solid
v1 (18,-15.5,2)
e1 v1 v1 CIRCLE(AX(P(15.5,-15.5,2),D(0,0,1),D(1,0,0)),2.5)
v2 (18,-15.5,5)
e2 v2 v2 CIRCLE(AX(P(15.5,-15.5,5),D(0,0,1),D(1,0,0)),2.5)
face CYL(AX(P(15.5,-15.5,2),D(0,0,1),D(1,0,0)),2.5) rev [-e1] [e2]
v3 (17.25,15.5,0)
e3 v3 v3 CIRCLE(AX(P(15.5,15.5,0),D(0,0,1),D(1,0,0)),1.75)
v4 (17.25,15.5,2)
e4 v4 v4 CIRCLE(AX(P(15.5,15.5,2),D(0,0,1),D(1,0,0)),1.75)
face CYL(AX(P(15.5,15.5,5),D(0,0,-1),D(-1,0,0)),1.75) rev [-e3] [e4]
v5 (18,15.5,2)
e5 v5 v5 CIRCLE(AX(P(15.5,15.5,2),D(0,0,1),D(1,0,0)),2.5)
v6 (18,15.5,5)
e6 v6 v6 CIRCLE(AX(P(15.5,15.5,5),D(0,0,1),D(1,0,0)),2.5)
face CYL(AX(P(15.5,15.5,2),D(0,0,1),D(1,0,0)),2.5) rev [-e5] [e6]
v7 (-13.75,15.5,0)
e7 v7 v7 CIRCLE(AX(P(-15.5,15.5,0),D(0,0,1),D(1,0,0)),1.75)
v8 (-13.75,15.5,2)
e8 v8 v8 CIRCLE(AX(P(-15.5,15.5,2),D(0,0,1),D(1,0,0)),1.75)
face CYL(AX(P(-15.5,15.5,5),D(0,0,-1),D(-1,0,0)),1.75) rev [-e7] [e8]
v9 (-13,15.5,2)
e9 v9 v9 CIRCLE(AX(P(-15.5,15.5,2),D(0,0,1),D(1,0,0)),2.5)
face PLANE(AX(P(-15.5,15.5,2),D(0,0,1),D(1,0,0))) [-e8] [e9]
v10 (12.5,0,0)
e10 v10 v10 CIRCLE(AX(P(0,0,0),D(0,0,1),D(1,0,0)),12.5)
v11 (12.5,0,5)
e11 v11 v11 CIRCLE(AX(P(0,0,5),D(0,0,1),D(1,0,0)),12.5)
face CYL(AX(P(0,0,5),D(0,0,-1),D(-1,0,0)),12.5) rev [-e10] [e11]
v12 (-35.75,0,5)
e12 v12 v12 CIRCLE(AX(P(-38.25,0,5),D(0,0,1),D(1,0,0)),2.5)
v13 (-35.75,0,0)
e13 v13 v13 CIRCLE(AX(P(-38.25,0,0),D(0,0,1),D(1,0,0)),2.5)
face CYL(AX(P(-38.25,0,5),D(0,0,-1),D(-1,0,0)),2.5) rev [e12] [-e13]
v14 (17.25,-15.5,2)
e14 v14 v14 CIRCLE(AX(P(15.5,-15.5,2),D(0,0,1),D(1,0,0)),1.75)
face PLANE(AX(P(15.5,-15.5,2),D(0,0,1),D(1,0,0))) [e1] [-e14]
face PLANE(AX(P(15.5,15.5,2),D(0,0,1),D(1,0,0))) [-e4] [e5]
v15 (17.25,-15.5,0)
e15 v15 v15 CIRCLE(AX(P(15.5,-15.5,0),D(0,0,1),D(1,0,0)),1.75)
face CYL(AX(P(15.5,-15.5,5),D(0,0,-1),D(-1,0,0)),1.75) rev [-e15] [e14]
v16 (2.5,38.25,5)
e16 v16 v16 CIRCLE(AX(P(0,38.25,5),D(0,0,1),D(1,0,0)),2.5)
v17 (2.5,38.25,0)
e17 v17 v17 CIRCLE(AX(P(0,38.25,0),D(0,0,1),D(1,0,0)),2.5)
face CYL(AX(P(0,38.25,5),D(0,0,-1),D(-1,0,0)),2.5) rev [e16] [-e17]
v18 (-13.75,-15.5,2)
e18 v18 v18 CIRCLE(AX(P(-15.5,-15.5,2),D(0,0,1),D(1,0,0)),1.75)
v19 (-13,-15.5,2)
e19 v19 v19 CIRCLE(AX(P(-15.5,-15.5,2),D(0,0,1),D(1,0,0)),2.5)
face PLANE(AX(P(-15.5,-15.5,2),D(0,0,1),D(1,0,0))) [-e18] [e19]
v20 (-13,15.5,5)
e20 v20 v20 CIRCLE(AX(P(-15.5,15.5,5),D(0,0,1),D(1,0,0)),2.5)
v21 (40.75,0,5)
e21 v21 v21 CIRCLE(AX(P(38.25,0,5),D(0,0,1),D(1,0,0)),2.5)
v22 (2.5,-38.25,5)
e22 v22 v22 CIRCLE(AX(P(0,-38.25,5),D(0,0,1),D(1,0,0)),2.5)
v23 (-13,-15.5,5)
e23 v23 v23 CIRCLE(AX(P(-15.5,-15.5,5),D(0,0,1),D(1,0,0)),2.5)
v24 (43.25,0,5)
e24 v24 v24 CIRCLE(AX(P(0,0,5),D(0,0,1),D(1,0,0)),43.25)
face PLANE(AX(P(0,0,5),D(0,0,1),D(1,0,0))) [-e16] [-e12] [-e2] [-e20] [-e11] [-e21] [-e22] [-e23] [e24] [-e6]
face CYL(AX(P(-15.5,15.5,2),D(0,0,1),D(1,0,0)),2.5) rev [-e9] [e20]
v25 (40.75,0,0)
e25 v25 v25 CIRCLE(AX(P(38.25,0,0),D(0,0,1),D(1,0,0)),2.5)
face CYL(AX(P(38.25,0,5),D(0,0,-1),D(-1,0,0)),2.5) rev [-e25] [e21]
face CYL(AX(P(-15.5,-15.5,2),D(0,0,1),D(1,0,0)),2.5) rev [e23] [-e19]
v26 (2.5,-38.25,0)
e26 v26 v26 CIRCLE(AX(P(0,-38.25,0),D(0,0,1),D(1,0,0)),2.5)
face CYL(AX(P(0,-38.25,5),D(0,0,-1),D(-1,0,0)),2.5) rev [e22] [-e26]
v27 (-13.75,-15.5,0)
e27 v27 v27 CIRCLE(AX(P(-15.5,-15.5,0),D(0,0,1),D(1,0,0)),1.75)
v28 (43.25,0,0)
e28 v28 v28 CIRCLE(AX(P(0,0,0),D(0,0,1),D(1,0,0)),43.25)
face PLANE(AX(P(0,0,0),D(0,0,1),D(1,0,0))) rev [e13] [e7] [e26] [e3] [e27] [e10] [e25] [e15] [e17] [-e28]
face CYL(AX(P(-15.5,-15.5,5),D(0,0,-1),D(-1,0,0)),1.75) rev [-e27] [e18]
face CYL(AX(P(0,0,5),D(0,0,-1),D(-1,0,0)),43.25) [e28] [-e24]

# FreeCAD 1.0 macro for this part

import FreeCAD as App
import Part
import Sketcher
Q = App.Units.Quantity

doc = App.newDocument("Part")
body = doc.addObject("PartDesign::Body", "Body")

# Sketch on XY plane
sketch1 = doc.addObject("Sketcher::SketchObject", "Sketch")
body.addObject(sketch1)
sketch1.AttachmentSupport = (doc.XY_Plane, [""])
sketch1.MapMode = "FlatFace"
sketch1.addGeometry([
    Part.Circle(App.Vector(0, 0, 0), App.Vector(0, 0, 1), 43.2),  # 0
    Part.Circle(App.Vector(-15.5, -15.5, 0), App.Vector(0, 0, 1), 1.8),  # 1
    Part.Circle(App.Vector(0, -38.2, 0), App.Vector(0, 0, 1), 2.5),  # 2
    Part.Circle(App.Vector(15.5, -15.5, 0), App.Vector(0, 0, 1), 1.8),  # 3
    Part.Circle(App.Vector(-38.2, 0, 0), App.Vector(0, 0, 1), 2.5),  # 4
    Part.Circle(App.Vector(-15.5, 15.5, 0), App.Vector(0, 0, 1), 1.8),  # 5
    Part.Circle(App.Vector(0, 0, 0), App.Vector(0, 0, 1), 12.5),  # 6
    Part.Circle(App.Vector(15.5, 15.5, 0), App.Vector(0, 0, 1), 1.8),  # 7
    Part.Circle(App.Vector(38.2, 0, 0), App.Vector(0, 0, 1), 2.5),  # 8
    Part.Circle(App.Vector(0, 38.2, 0), App.Vector(0, 0, 1), 2.5),  # 9
], False)
sketch1.addConstraint([
    Sketcher.Constraint("Coincident", 0, 3, -1, 1),
    Sketcher.Constraint("Coincident", 6, 3, -1, 1),
    Sketcher.Constraint("Equal", 1, 3),
    Sketcher.Constraint("Equal", 2, 4),
    Sketcher.Constraint("Equal", 3, 5),
    Sketcher.Constraint("Equal", 5, 7),
    Sketcher.Constraint("Equal", 4, 8),
    Sketcher.Constraint("Equal", 8, 9),
    Sketcher.Constraint("Symmetric", 3, 3, 5, 3, -1, 1),
    Sketcher.Constraint("Symmetric", 1, 3, 7, 3, -1, 1),
    Sketcher.Constraint("Symmetric", 4, 3, 8, 3, -1, 1),
    Sketcher.Constraint("Symmetric", 2, 3, 9, 3, -1, 1),
    Sketcher.Constraint("Symmetric", 1, 3, 3, 3, -2),
    Sketcher.Constraint("PointOnObject", 2, 3, -2),
    Sketcher.Constraint("PointOnObject", 4, 3, -1),
    Sketcher.Constraint("Diameter", 2, Q("5 mm")),
    Sketcher.Constraint("Diameter", 6, Q("25 mm")),
    Sketcher.Constraint("Diameter", 0, Q("86.5 mm")),
    Sketcher.Constraint("Diameter", 1, Q("3.5 mm")),
    Sketcher.Constraint("DistanceX", 1, 3, 3, 3, Q("31 mm")),
    Sketcher.Constraint("DistanceY", 1, 3, 5, 3, Q("31 mm")),
    Sketcher.Constraint("DistanceY", 2, 3, -1, 1, Q("38.25 mm")),
    Sketcher.Constraint("DistanceX", 4, 3, -1, 1, Q("38.25 mm")),
])
pad1 = doc.addObject("PartDesign::Pad", "Pad")
body.addObject(pad1)
pad1.Profile = sketch1
pad1.Length = 5

# Sketch on XY plane
sketch2 = doc.addObject("Sketcher::SketchObject", "Sketch001")
body.addObject(sketch2)
sketch2.AttachmentSupport = (doc.XY_Plane, [""])
sketch2.MapMode = "FlatFace"
sketch2.AttachmentOffset = App.Placement(App.Vector(0, 0, 5), App.Rotation())
sketch2.addGeometry([
    Part.Circle(App.Vector(-15.5, 15.5, 0), App.Vector(0, 0, 1), 2.5),
    Part.Circle(App.Vector(15.5, 15.5, 0), App.Vector(0, 0, 1), 2.5),
    Part.Circle(App.Vector(15.5, -15.5, 0), App.Vector(0, 0, 1), 2.5),
    Part.Circle(App.Vector(-15.5, -15.5, 0), App.Vector(0, 0, 1), 2.5),
], False)
sketch2.addConstraint([
    Sketcher.Constraint("Equal", 0, 1),
    Sketcher.Constraint("Equal", 1, 2),
    Sketcher.Constraint("Equal", 2, 3),
    Sketcher.Constraint("Symmetric", 0, 3, 2, 3, -1, 1),
    Sketcher.Constraint("Symmetric", 1, 3, 3, 3, -1, 1),
    Sketcher.Constraint("Symmetric", 0, 3, 1, 3, -2),
    Sketcher.Constraint("Diameter", 0, Q("5 mm")),
    Sketcher.Constraint("DistanceX", 0, 3, 1, 3, Q("31 mm")),
    Sketcher.Constraint("DistanceY", 2, 3, 1, 3, Q("31 mm")),
])
pocket1 = doc.addObject("PartDesign::Pocket", "Pocket")
body.addObject(pocket1)
pocket1.Profile = sketch2
pocket1.Length = 3

doc.recompute()
